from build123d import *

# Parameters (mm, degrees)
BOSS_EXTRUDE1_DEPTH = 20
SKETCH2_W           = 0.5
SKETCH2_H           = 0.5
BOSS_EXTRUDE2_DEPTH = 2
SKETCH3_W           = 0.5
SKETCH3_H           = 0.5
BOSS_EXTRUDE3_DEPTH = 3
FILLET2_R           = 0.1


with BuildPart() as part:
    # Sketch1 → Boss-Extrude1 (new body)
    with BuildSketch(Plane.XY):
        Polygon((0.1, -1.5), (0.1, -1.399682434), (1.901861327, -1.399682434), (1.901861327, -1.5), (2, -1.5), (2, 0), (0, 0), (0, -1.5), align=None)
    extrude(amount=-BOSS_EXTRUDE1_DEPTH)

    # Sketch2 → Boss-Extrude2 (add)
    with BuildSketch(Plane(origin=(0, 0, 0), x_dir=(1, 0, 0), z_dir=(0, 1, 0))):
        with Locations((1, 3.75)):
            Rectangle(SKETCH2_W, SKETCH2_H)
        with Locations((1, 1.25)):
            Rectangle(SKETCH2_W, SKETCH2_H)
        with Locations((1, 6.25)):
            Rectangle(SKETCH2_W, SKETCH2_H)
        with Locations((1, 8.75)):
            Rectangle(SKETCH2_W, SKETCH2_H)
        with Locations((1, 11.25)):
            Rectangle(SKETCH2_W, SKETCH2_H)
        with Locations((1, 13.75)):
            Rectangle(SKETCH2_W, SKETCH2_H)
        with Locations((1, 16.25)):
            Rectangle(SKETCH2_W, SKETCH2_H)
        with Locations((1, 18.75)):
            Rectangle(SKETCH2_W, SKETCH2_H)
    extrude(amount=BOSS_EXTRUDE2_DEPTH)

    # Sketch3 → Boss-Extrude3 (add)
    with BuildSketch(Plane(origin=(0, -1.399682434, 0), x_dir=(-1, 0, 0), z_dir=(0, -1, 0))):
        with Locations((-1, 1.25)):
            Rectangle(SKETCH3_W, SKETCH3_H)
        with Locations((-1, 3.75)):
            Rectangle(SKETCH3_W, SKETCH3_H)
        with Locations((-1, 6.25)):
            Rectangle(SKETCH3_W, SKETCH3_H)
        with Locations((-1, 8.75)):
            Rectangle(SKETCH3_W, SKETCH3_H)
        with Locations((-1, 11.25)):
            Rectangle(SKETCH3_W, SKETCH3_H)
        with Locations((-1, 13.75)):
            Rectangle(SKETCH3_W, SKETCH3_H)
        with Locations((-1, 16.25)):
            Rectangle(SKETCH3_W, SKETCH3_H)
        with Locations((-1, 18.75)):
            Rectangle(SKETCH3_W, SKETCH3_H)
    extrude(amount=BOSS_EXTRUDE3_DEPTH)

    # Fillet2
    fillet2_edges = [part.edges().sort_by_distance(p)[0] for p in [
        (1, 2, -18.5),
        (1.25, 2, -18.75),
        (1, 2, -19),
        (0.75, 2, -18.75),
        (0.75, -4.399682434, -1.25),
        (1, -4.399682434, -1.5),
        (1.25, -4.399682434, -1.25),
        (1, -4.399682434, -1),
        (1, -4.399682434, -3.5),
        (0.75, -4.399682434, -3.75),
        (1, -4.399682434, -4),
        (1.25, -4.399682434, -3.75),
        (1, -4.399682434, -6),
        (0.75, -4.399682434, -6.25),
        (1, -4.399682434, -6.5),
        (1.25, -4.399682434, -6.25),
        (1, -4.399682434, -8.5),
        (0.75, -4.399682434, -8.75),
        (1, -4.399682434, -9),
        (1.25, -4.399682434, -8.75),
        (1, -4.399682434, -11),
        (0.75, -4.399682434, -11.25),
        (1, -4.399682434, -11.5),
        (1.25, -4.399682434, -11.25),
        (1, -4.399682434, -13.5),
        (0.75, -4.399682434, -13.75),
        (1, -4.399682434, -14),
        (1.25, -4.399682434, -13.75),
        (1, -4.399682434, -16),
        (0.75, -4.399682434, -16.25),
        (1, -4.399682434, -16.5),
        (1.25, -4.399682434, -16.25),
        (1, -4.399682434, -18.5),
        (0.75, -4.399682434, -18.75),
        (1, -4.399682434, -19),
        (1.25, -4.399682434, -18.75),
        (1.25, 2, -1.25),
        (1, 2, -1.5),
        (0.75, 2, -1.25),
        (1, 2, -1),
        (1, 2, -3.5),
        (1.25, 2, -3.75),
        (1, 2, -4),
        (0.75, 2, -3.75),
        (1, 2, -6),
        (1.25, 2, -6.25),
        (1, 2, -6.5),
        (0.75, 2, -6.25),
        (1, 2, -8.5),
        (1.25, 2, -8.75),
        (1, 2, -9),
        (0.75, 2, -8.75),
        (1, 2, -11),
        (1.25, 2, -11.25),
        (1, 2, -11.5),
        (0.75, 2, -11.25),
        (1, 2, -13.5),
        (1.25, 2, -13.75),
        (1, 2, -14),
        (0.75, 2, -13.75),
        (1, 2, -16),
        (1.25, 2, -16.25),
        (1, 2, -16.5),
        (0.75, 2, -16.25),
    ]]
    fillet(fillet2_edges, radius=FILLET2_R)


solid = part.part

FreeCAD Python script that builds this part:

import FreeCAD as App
import Part
import Sketcher


def edges_at(feature, points):
    """Names of the edges that pass closest to the given points."""
    edges = feature.Shape.Edges
    near = lambda p: min(range(len(edges)), key=lambda i: edges[i].distToShape(Part.Vertex(*p))[0])
    return sorted({f"Edge{near(p) + 1}" for p in points})


def add_polygon(sketch, points):
    """Adds a closed chain of lines whose ends are joined by coincident constraints."""
    first, n = sketch.GeometryCount, len(points)
    for a, b in zip(points, points[1:] + points[:1]):
        sketch.addGeometry(Part.LineSegment(App.Vector(*a, 0), App.Vector(*b, 0)), False)
    for i in range(n):
        sketch.addConstraint(Sketcher.Constraint("Coincident", first + i, 2, first + (i + 1) % n, 1))

doc = App.newDocument("Part")
body = doc.addObject("PartDesign::Body", "Body")

sketch1 = body.newObject("Sketcher::SketchObject", "Sketch")
sketch1.AttachmentSupport = (doc.getObject("XY_Plane"), [""])
sketch1.MapMode = "FlatFace"
add_polygon(sketch1, [(0.1, -1.5), (0.1, -1.4), (1.9, -1.4), (1.9, -1.5), (2, -1.5), (2, 0), (0, 0), (0, -1.5)])
sketch1.addConstraint(Sketcher.Constraint("Vertical", 0))
sketch1.addConstraint(Sketcher.Constraint("Horizontal", 1))
sketch1.addConstraint(Sketcher.Constraint("Vertical", 2))
sketch1.addConstraint(Sketcher.Constraint("Horizontal", 3))
sketch1.addConstraint(Sketcher.Constraint("Vertical", 4))
sketch1.addConstraint(Sketcher.Constraint("Horizontal", 5))
sketch1.addConstraint(Sketcher.Constraint("Vertical", 6))
sketch1.addConstraint(Sketcher.Constraint("Horizontal", 7))
sketch1.addConstraint(Sketcher.Constraint("Coincident", 5, 2, -1, 1))
sketch1.addConstraint(Sketcher.Constraint("Horizontal", 3, 2, 6, 2))
sketch1.addConstraint(Sketcher.Constraint("DistanceX", 5, 2, 5, 1, 2.0))
sketch1.addConstraint(Sketcher.Constraint("DistanceX", 7, 1, 7, 2, 0.1))
sketch1.addConstraint(Sketcher.Constraint("DistanceY", 4, 1, 4, 2, 1.5))
sketch1.addConstraint(Sketcher.Constraint("DistanceX", 1, 1, 1, 2, 1.801861))
sketch1.addConstraint(Sketcher.Constraint("DistanceY", 0, 1, 0, 2, 0.100318))
pad1 = body.newObject("PartDesign::Pad", "Pad")
pad1.Profile = sketch1
pad1.Length = 20
pad1.Reversed = True

sketch2 = body.newObject("Sketcher::SketchObject", "Sketch001")
sketch2.AttachmentSupport = (doc.getObject("XZ_Plane"), [""])
sketch2.MapMode = "FlatFace"
add_polygon(sketch2, [(0.8, -4), (0.8, -3.5), (1.2, -3.5), (1.2, -4)])
add_polygon(sketch2, [(0.8, -1.5), (0.8, -1), (1.2, -1), (1.2, -1.5)])
add_polygon(sketch2, [(0.8, -6.5), (0.8, -6), (1.2, -6), (1.2, -6.5)])
add_polygon(sketch2, [(0.8, -9), (0.8, -8.5), (1.2, -8.5), (1.2, -9)])
add_polygon(sketch2, [(0.8, -11.5), (0.8, -11), (1.2, -11), (1.2, -11.5)])
add_polygon(sketch2, [(0.8, -14), (0.8, -13.5), (1.2, -13.5), (1.2, -14)])
add_polygon(sketch2, [(0.8, -16.5), (0.8, -16), (1.2, -16), (1.2, -16.5)])
add_polygon(sketch2, [(0.8, -19), (0.8, -18.5), (1.2, -18.5), (1.2, -19)])
sketch2.addConstraint(Sketcher.Constraint("Vertical", 0))
sketch2.addConstraint(Sketcher.Constraint("Horizontal", 1))
sketch2.addConstraint(Sketcher.Constraint("Vertical", 2))
sketch2.addConstraint(Sketcher.Constraint("Horizontal", 3))
sketch2.addConstraint(Sketcher.Constraint("Vertical", 4))
sketch2.addConstraint(Sketcher.Constraint("Horizontal", 5))
sketch2.addConstraint(Sketcher.Constraint("Vertical", 6))
sketch2.addConstraint(Sketcher.Constraint("Horizontal", 7))
sketch2.addConstraint(Sketcher.Constraint("Vertical", 8))
sketch2.addConstraint(Sketcher.Constraint("Horizontal", 9))
sketch2.addConstraint(Sketcher.Constraint("Vertical", 10))
sketch2.addConstraint(Sketcher.Constraint("Horizontal", 11))
sketch2.addConstraint(Sketcher.Constraint("Vertical", 12))
sketch2.addConstraint(Sketcher.Constraint("Horizontal", 13))
sketch2.addConstraint(Sketcher.Constraint("Vertical", 14))
sketch2.addConstraint(Sketcher.Constraint("Horizontal", 15))
sketch2.addConstraint(Sketcher.Constraint("Vertical", 16))
sketch2.addConstraint(Sketcher.Constraint("Horizontal", 17))
sketch2.addConstraint(Sketcher.Constraint("Vertical", 18))
sketch2.addConstraint(Sketcher.Constraint("Horizontal", 19))
sketch2.addConstraint(Sketcher.Constraint("Vertical", 20))
sketch2.addConstraint(Sketcher.Constraint("Horizontal", 21))
sketch2.addConstraint(Sketcher.Constraint("Vertical", 22))
sketch2.addConstraint(Sketcher.Constraint("Horizontal", 23))
sketch2.addConstraint(Sketcher.Constraint("Vertical", 24))
sketch2.addConstraint(Sketcher.Constraint("Horizontal", 25))
sketch2.addConstraint(Sketcher.Constraint("Vertical", 26))
sketch2.addConstraint(Sketcher.Constraint("Horizontal", 27))
sketch2.addConstraint(Sketcher.Constraint("Vertical", 28))
sketch2.addConstraint(Sketcher.Constraint("Horizontal", 29))
sketch2.addConstraint(Sketcher.Constraint("Vertical", 30))
sketch2.addConstraint(Sketcher.Constraint("Horizontal", 31))
sketch2.addConstraint(Sketcher.Constraint("Vertical", 3, 2, 4, 2))
sketch2.addConstraint(Sketcher.Constraint("Vertical", 2, 2, 5, 2))
sketch2.addConstraint(Sketcher.Constraint("Vertical", 7, 2, 8, 2))
sketch2.addConstraint(Sketcher.Constraint("Vertical", 6, 2, 9, 2))
sketch2.addConstraint(Sketcher.Constraint("Vertical", 11, 2, 12, 2))
sketch2.addConstraint(Sketcher.Constraint("Vertical", 10, 2, 13, 2))
sketch2.addConstraint(Sketcher.Constraint("Vertical", 15, 2, 16, 2))
sketch2.addConstraint(Sketcher.Constraint("Vertical", 14, 2, 17, 2))
sketch2.addConstraint(Sketcher.Constraint("Vertical", 19, 2, 20, 2))
sketch2.addConstraint(Sketcher.Constraint("Vertical", 18, 2, 21, 2))
sketch2.addConstraint(Sketcher.Constraint("Vertical", 23, 2, 24, 2))
sketch2.addConstraint(Sketcher.Constraint("Vertical", 22, 2, 25, 2))
sketch2.addConstraint(Sketcher.Constraint("Vertical", 27, 2, 28, 2))
sketch2.addConstraint(Sketcher.Constraint("Vertical", 26, 2, 29, 2))
sketch2.addConstraint(Sketcher.Constraint("Equal", 31, 0))
sketch2.addConstraint(Sketcher.Constraint("Equal", 2, 4))
sketch2.addConstraint(Sketcher.Constraint("Equal", 6, 8))
sketch2.addConstraint(Sketcher.Constraint("Equal", 10, 12))
sketch2.addConstraint(Sketcher.Constraint("Equal", 14, 16))
sketch2.addConstraint(Sketcher.Constraint("Equal", 18, 20))
sketch2.addConstraint(Sketcher.Constraint("Equal", 22, 24))
sketch2.addConstraint(Sketcher.Constraint("Equal", 26, 28))
sketch2.addConstraint(Sketcher.Constraint("DistanceX", 1, 1, 1, 2, 0.5))
sketch2.addConstraint(Sketcher.Constraint("DistanceY", 2, 2, -1, 1, 4.0))
sketch2.addConstraint(Sketcher.Constraint("DistanceY", 4, 2, -1, 1, 1.0))
sketch2.addConstraint(Sketcher.Constraint("DistanceY", 8, 2, -1, 1, 6.0))
sketch2.addConstraint(Sketcher.Constraint("DistanceY", 14, 2, -1, 1, 9.0))
sketch2.addConstraint(Sketcher.Constraint("DistanceY", 16, 2, -1, 1, 11.0))
sketch2.addConstraint(Sketcher.Constraint("DistanceY", 22, 2, -1, 1, 14.0))
sketch2.addConstraint(Sketcher.Constraint("DistanceY", 24, 2, -1, 1, 16.0))
sketch2.addConstraint(Sketcher.Constraint("DistanceY", 30, 2, -1, 1, 19.0))
sketch2.addConstraint(Sketcher.Constraint("DistanceX", -1, 1, 0, 2, 0.75))
pad2 = body.newObject("PartDesign::Pad", "Pad001")
pad2.Profile = sketch2
pad2.Length = 2
pad2.Reversed = True

sketch3 = body.newObject("Sketcher::SketchObject", "Sketch002")
sketch3.AttachmentSupport = (doc.getObject("XZ_Plane"), [""])
sketch3.MapMode = "FlatFace"
sketch3.AttachmentOffset = App.Placement(App.Vector(0, 0, 1.399682), App.Rotation())
add_polygon(sketch3, [(1.2, -1.5), (1.2, -1), (0.8, -1), (0.8, -1.5)])
add_polygon(sketch3, [(1.2, -4), (1.2, -3.5), (0.8, -3.5), (0.8, -4)])
add_polygon(sketch3, [(1.2, -6.5), (1.2, -6), (0.8, -6), (0.8, -6.5)])
add_polygon(sketch3, [(1.2, -9), (1.2, -8.5), (0.8, -8.5), (0.8, -9)])
add_polygon(sketch3, [(1.2, -11.5), (1.2, -11), (0.8, -11), (0.8, -11.5)])
add_polygon(sketch3, [(1.2, -14), (1.2, -13.5), (0.8, -13.5), (0.8, -14)])
add_polygon(sketch3, [(1.2, -16.5), (1.2, -16), (0.8, -16), (0.8, -16.5)])
add_polygon(sketch3, [(1.2, -19), (1.2, -18.5), (0.8, -18.5), (0.8, -19)])
sketch3.addConstraint(Sketcher.Constraint("Vertical", 0))
sketch3.addConstraint(Sketcher.Constraint("Horizontal", 1))
sketch3.addConstraint(Sketcher.Constraint("Vertical", 2))
sketch3.addConstraint(Sketcher.Constraint("Horizontal", 3))
sketch3.addConstraint(Sketcher.Constraint("Vertical", 4))
sketch3.addConstraint(Sketcher.Constraint("Horizontal", 5))
sketch3.addConstraint(Sketcher.Constraint("Vertical", 6))
sketch3.addConstraint(Sketcher.Constraint("Horizontal", 7))
sketch3.addConstraint(Sketcher.Constraint("Vertical", 8))
sketch3.addConstraint(Sketcher.Constraint("Horizontal", 9))
sketch3.addConstraint(Sketcher.Constraint("Vertical", 10))
sketch3.addConstraint(Sketcher.Constraint("Horizontal", 11))
sketch3.addConstraint(Sketcher.Constraint("Vertical", 12))
sketch3.addConstraint(Sketcher.Constraint("Horizontal", 13))
sketch3.addConstraint(Sketcher.Constraint("Vertical", 14))
sketch3.addConstraint(Sketcher.Constraint("Horizontal", 15))
sketch3.addConstraint(Sketcher.Constraint("Vertical", 16))
sketch3.addConstraint(Sketcher.Constraint("Horizontal", 17))
sketch3.addConstraint(Sketcher.Constraint("Vertical", 18))
sketch3.addConstraint(Sketcher.Constraint("Horizontal", 19))
sketch3.addConstraint(Sketcher.Constraint("Vertical", 20))
sketch3.addConstraint(Sketcher.Constraint("Horizontal", 21))
sketch3.addConstraint(Sketcher.Constraint("Vertical", 22))
sketch3.addConstraint(Sketcher.Constraint("Horizontal", 23))
sketch3.addConstraint(Sketcher.Constraint("Vertical", 24))
sketch3.addConstraint(Sketcher.Constraint("Horizontal", 25))
sketch3.addConstraint(Sketcher.Constraint("Vertical", 26))
sketch3.addConstraint(Sketcher.Constraint("Horizontal", 27))
sketch3.addConstraint(Sketcher.Constraint("Vertical", 28))
sketch3.addConstraint(Sketcher.Constraint("Horizontal", 29))
sketch3.addConstraint(Sketcher.Constraint("Vertical", 30))
sketch3.addConstraint(Sketcher.Constraint("Horizontal", 31))
sketch3.addConstraint(Sketcher.Constraint("Vertical", 3, 2, 4, 2))
sketch3.addConstraint(Sketcher.Constraint("Vertical", 2, 2, 5, 2))
sketch3.addConstraint(Sketcher.Constraint("Vertical", 7, 2, 8, 2))
sketch3.addConstraint(Sketcher.Constraint("Vertical", 6, 2, 9, 2))
sketch3.addConstraint(Sketcher.Constraint("Vertical", 11, 2, 12, 2))
sketch3.addConstraint(Sketcher.Constraint("Vertical", 10, 2, 13, 2))
sketch3.addConstraint(Sketcher.Constraint("Vertical", 15, 2, 16, 2))
sketch3.addConstraint(Sketcher.Constraint("Vertical", 14, 2, 17, 2))
sketch3.addConstraint(Sketcher.Constraint("Vertical", 19, 2, 20, 2))
sketch3.addConstraint(Sketcher.Constraint("Vertical", 18, 2, 21, 2))
sketch3.addConstraint(Sketcher.Constraint("Vertical", 23, 2, 24, 2))
sketch3.addConstraint(Sketcher.Constraint("Vertical", 22, 2, 25, 2))
sketch3.addConstraint(Sketcher.Constraint("Vertical", 27, 2, 28, 2))
sketch3.addConstraint(Sketcher.Constraint("Vertical", 26, 2, 29, 2))
sketch3.addConstraint(Sketcher.Constraint("Equal", 31, 0))
sketch3.addConstraint(Sketcher.Constraint("Equal", 2, 4))
sketch3.addConstraint(Sketcher.Constraint("Equal", 6, 8))
sketch3.addConstraint(Sketcher.Constraint("Equal", 10, 12))
sketch3.addConstraint(Sketcher.Constraint("Equal", 14, 16))
sketch3.addConstraint(Sketcher.Constraint("Equal", 18, 20))
sketch3.addConstraint(Sketcher.Constraint("Equal", 22, 24))
sketch3.addConstraint(Sketcher.Constraint("Equal", 26, 28))
sketch3.addConstraint(Sketcher.Constraint("DistanceX", 1, 2, 1, 1, 0.5))
sketch3.addConstraint(Sketcher.Constraint("DistanceY", 0, 2, -1, 1, 1.0))
sketch3.addConstraint(Sketcher.Constraint("DistanceY", 6, 2, -1, 1, 4.0))
sketch3.addConstraint(Sketcher.Constraint("DistanceY", 8, 2, -1, 1, 6.0))
sketch3.addConstraint(Sketcher.Constraint("DistanceY", 14, 2, -1, 1, 9.0))
sketch3.addConstraint(Sketcher.Constraint("DistanceY", 16, 2, -1, 1, 11.0))
sketch3.addConstraint(Sketcher.Constraint("DistanceY", 22, 2, -1, 1, 14.0))
sketch3.addConstraint(Sketcher.Constraint("DistanceY", 24, 2, -1, 1, 16.0))
sketch3.addConstraint(Sketcher.Constraint("DistanceY", 30, 2, -1, 1, 19.0))
sketch3.addConstraint(Sketcher.Constraint("DistanceX", -1, 1, 0, 2, 1.25))
pad3 = body.newObject("PartDesign::Pad", "Pad002")
pad3.Profile = sketch3
pad3.Length = 3
doc.recompute()

fillet = body.newObject("PartDesign::Fillet", "Fillet")
fillet.Base = (pad3, edges_at(pad3, [
    (1, 2, -18.5),
    (1.25, 2, -18.75),
    (1, 2, -19),
    (0.75, 2, -18.75),
    (0.75, -4.4, -1.25),
    (1, -4.4, -1.5),
    (1.25, -4.4, -1.25),
    (1, -4.4, -1),
    (1, -4.4, -3.5),
    (0.75, -4.4, -3.75),
    (1, -4.4, -4),
    (1.25, -4.4, -3.75),
    (1, -4.4, -6),
    (0.75, -4.4, -6.25),
    (1, -4.4, -6.5),
    (1.25, -4.4, -6.25),
    (1, -4.4, -8.5),
    (0.75, -4.4, -8.75),
    (1, -4.4, -9),
    (1.25, -4.4, -8.75),
    (1, -4.4, -11),
    (0.75, -4.4, -11.25),
    (1, -4.4, -11.5),
    (1.25, -4.4, -11.25),
    (1, -4.4, -13.5),
    (0.75, -4.4, -13.75),
    (1, -4.4, -14),
    (1.25, -4.4, -13.75),
    (1, -4.4, -16),
    (0.75, -4.4, -16.25),
    (1, -4.4, -16.5),
    (1.25, -4.4, -16.25),
    (1, -4.4, -18.5),
    (0.75, -4.4, -18.75),
    (1, -4.4, -19),
    (1.25, -4.4, -18.75),
    (1.25, 2, -1.25),
    (1, 2, -1.5),
    (0.75, 2, -1.25),
    (1, 2, -1),
    (1, 2, -3.5),
    (1.25, 2, -3.75),
    (1, 2, -4),
    (0.75, 2, -3.75),
    (1, 2, -6),
    (1.25, 2, -6.25),
    (1, 2, -6.5),
    (0.75, 2, -6.25),
    (1, 2, -8.5),
    (1.25, 2, -8.75),
    (1, 2, -9),
    (0.75, 2, -8.75),
    (1, 2, -11),
    (1.25, 2, -11.25),
    (1, 2, -11.5),
    (0.75, 2, -11.25),
    (1, 2, -13.5),
    (1.25, 2, -13.75),
    (1, 2, -14),
    (0.75, 2, -13.75),
    (1, 2, -16),
    (1.25, 2, -16.25),
    (1, 2, -16.5),
    (0.75, 2, -16.25),
]))
fillet.Radius = 0.1

doc.recompute()
